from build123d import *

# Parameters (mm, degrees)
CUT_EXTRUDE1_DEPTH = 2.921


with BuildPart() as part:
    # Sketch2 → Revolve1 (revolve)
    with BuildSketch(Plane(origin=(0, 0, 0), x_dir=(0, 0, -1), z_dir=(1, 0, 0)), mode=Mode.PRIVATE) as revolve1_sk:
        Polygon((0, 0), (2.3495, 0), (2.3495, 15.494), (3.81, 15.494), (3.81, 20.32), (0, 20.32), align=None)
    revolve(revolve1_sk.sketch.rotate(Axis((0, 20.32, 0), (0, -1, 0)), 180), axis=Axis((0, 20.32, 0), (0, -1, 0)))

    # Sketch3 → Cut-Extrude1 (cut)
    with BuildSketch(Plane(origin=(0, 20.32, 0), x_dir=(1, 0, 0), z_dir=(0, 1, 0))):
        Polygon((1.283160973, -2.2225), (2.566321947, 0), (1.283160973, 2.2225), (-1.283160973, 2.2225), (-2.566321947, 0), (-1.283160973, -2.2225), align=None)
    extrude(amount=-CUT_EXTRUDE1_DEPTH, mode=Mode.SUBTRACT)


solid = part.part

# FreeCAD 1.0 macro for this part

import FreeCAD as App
import Part
import Sketcher
from FreeCAD import Vector
Q = App.Units.Quantity


def add_polygon(sketch, points):
    """Adds a closed chain of lines whose ends are joined by coincident constraints."""
    first, n = sketch.GeometryCount, len(points)
    for a, b in zip(points, points[1:] + points[:1]):
        sketch.addGeometry(Part.LineSegment(App.Vector(*a, 0), App.Vector(*b, 0)), False)
    for i in range(n):
        sketch.addConstraint(Sketcher.Constraint("Coincident", first + i, 2, first + (i + 1) % n, 1))

doc = App.newDocument("Part")
body = doc.addObject("PartDesign::Body", "Body")

# Sketch on YZ plane
sketch1 = body.newObject("Sketcher::SketchObject", "Sketch")
sketch1.AttachmentSupport = (doc.getObject("YZ_Plane"), [""])
sketch1.MapMode = "FlatFace"
add_polygon(sketch1, [(0, 0), (0, -2.3), (15.5, -2.3), (15.5, -3.8), (20.3, -3.8), (20.3, 0)])  # lines 0-5
sketch1.addConstraint(Sketcher.Constraint("Vertical", 0))
sketch1.addConstraint(Sketcher.Constraint("Horizontal", 1))
sketch1.addConstraint(Sketcher.Constraint("Vertical", 2))
sketch1.addConstraint(Sketcher.Constraint("Horizontal", 3))
sketch1.addConstraint(Sketcher.Constraint("Vertical", 4))
sketch1.addConstraint(Sketcher.Constraint("Horizontal", 5))
sketch1.addConstraint(Sketcher.Constraint("Coincident", 5, 2, -1, 1))
sketch1.addConstraint(Sketcher.Constraint("DistanceX", 5, 2, 5, 1, Q("0.8 in")))
sketch1.addConstraint(Sketcher.Constraint("DistanceX", 1, 1, 1, 2, Q("0.61 in")))
sketch1.addConstraint(Sketcher.Constraint("DistanceY", 4, 1, 4, 2, Q("0.15 in")))
sketch1.addConstraint(Sketcher.Constraint("DistanceY", 0, 2, 0, 1, Q("0.0925 in")))
revolution = body.newObject("PartDesign::Revolution", "Revolution")
revolution.Profile = sketch1
revolution.ReferenceAxis = (sketch1, ["H_Axis"])
revolution.Angle = 360

# Sketch on XZ plane
sketch2 = body.newObject("Sketcher::SketchObject", "Sketch001")
sketch2.AttachmentSupport = (doc.getObject("XZ_Plane"), [""])
sketch2.MapMode = "FlatFace"
sketch2.AttachmentOffset = App.Placement(Vector(0, 0, -0.8 * 25.4), App.Rotation())
add_polygon(sketch2, [(1.3, 2.2), (2.6, 0), (1.3, -2.2), (-1.3, -2.2), (-2.6, 0), (-1.3, 2.2)])  # lines 0-5
sketch2.addConstraint(Sketcher.Constraint("Horizontal", 2))
sketch2.addConstraint(Sketcher.Constraint("Horizontal", 5))
sketch2.addConstraint(Sketcher.Constraint("Symmetric", 0, 2, 3, 2, -1, 1))
sketch2.addConstraint(Sketcher.Constraint("Symmetric", 1, 2, 4, 2, -1, 1))
sketch2.addConstraint(Sketcher.Constraint("PointOnObject", 0, 2, -1))
sketch2.addConstraint(Sketcher.Constraint("Parallel", 0, 3))
sketch2.addConstraint(Sketcher.Constraint("Vertical", 2, 2, 4, 2))
sketch2.addConstraint(Sketcher.Constraint("Angle", 0, Q("-60 deg")))
sketch2.addConstraint(Sketcher.Constraint("DistanceY", 2, 2, 4, 2, Q("0.175 in")))
sketch2.addConstraint(Sketcher.Constraint("DistanceX", 2, 2, 2, 1, 2.566322))
pocket1 = body.newObject("PartDesign::Pocket", "Pocket")
pocket1.Profile = sketch2
pocket1.Length = Q("0.115 in")
pocket1.Reversed = True

doc.recompute()
